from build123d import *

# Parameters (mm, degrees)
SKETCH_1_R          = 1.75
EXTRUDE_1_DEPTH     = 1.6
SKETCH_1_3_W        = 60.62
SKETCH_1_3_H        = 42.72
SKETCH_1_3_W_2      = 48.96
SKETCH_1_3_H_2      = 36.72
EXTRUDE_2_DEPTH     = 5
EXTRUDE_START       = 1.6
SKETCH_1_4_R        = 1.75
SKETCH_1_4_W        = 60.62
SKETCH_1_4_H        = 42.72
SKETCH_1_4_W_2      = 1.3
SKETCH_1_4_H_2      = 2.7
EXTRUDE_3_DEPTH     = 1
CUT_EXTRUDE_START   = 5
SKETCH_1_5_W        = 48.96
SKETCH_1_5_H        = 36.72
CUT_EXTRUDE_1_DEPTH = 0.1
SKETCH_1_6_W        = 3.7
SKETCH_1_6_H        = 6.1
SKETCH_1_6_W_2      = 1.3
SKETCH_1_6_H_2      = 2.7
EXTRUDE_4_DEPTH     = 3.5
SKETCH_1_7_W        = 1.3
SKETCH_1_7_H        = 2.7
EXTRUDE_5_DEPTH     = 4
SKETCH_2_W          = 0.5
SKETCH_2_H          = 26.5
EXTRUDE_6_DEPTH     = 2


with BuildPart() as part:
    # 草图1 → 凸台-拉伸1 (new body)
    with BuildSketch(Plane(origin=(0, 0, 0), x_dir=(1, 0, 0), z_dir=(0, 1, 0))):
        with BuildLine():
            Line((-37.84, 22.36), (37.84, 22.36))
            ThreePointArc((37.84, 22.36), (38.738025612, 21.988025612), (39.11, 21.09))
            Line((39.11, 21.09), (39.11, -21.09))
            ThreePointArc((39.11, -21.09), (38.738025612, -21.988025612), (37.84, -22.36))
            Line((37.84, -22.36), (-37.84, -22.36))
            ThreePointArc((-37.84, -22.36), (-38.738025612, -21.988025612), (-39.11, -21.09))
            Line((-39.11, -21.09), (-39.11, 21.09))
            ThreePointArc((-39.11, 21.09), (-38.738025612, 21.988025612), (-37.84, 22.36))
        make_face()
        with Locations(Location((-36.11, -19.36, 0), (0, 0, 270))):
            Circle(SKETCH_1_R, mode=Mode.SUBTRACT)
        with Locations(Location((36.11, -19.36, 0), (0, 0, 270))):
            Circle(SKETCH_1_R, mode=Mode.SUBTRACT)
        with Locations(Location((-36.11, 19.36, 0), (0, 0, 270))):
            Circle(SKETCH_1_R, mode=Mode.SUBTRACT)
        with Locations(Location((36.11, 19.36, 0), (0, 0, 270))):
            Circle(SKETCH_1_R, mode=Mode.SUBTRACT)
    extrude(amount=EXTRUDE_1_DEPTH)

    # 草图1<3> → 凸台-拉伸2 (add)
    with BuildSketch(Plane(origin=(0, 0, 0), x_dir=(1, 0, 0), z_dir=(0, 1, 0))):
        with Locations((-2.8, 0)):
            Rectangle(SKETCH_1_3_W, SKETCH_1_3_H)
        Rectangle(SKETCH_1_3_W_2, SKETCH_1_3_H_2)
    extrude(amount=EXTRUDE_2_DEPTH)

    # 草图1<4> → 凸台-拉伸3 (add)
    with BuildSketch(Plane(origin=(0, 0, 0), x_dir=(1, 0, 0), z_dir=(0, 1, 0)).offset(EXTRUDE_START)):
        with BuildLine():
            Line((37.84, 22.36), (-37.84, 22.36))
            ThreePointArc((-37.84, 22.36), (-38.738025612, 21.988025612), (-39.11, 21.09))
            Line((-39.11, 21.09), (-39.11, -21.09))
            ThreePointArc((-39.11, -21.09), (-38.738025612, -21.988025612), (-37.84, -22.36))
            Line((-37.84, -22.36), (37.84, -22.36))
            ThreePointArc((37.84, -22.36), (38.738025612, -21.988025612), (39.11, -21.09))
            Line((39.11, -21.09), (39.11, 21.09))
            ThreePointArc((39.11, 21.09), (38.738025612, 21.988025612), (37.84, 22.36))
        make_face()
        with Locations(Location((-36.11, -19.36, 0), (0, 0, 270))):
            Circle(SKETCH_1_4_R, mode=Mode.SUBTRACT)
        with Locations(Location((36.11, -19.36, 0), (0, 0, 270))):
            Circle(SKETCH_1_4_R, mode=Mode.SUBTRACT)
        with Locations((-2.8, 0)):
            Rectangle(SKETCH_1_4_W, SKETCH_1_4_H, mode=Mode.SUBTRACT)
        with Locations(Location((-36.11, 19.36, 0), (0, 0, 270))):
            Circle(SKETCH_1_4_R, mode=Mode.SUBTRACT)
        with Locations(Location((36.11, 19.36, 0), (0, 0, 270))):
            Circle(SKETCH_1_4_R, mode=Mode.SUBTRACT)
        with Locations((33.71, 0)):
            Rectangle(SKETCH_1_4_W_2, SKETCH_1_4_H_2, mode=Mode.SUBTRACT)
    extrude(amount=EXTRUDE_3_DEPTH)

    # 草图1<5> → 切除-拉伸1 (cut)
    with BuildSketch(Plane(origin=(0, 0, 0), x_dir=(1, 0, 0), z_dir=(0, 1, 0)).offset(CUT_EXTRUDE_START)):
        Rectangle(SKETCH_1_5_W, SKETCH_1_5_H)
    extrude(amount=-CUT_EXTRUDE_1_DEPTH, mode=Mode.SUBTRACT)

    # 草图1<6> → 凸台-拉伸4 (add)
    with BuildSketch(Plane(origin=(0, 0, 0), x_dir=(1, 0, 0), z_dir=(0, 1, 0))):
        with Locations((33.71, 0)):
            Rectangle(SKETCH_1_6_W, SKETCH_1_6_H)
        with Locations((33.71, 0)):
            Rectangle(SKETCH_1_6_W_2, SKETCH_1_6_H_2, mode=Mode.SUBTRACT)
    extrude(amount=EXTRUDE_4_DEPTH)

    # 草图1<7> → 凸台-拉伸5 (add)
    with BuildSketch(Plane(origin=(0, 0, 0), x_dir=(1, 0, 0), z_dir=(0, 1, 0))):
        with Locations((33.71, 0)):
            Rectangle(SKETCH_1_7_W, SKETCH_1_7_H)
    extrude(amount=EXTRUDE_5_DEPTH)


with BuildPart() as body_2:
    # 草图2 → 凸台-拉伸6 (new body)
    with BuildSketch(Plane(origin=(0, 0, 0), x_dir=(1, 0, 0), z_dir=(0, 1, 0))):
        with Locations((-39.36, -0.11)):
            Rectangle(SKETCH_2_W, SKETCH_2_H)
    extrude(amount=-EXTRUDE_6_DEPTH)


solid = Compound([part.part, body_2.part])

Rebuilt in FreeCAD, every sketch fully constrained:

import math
import FreeCAD as App
import Part
import Sketcher
Q = App.Units.Quantity


def add_polygon(sketch, points):
    """Adds a closed chain of lines whose ends are joined by coincident constraints."""
    first, n = sketch.GeometryCount, len(points)
    for a, b in zip(points, points[1:] + points[:1]):
        sketch.addGeometry(Part.LineSegment(App.Vector(*a, 0), App.Vector(*b, 0)), False)
    for i in range(n):
        sketch.addConstraint(Sketcher.Constraint("Coincident", first + i, 2, first + (i + 1) % n, 1))

doc = App.newDocument("Part")
body = doc.addObject("PartDesign::Body", "Body")

# Sketch on XZ plane
sketch1 = body.newObject("Sketcher::SketchObject", "Sketch")
sketch1.AttachmentSupport = (doc.getObject("XZ_Plane"), [""])
sketch1.MapMode = "FlatFace"
sketch1.addGeometry(Part.LineSegment(App.Vector(37.84, -22.36, 0), App.Vector(-37.84, -22.36, 0)), False)
sketch1.addGeometry(Part.ArcOfCircle(Part.Circle(App.Vector(-37.84, -21.09, 0), App.Vector(0, 0, 1), 1.27), math.radians(180), math.radians(270)), False)
sketch1.addGeometry(Part.LineSegment(App.Vector(-39.11, -21.09, 0), App.Vector(-39.11, 21.09, 0)), False)
sketch1.addGeometry(Part.ArcOfCircle(Part.Circle(App.Vector(-37.84, 21.09, 0), App.Vector(0, 0, 1), 1.27), math.radians(90), math.radians(180)), False)
sketch1.addGeometry(Part.LineSegment(App.Vector(-37.84, 22.36, 0), App.Vector(37.84, 22.36, 0)), False)
sketch1.addGeometry(Part.ArcOfCircle(Part.Circle(App.Vector(37.84, 21.09, 0), App.Vector(0, 0, 1), 1.27), math.radians(0), math.radians(90)), False)
sketch1.addGeometry(Part.LineSegment(App.Vector(39.11, 21.09, 0), App.Vector(39.11, -21.09, 0)), False)
sketch1.addGeometry(Part.ArcOfCircle(Part.Circle(App.Vector(37.84, -21.09, 0), App.Vector(0, 0, 1), 1.27), math.radians(-90), math.radians(0)), False)
sketch1.addGeometry(Part.Circle(App.Vector(36.11, 19.36, 0), App.Vector(0, 0, 1), 1.75), False)
sketch1.addGeometry(Part.Circle(App.Vector(-36.11, 19.36, 0), App.Vector(0, 0, 1), 1.75), False)
sketch1.addGeometry(Part.Circle(App.Vector(36.11, -19.36, 0), App.Vector(0, 0, 1), 1.75), False)
sketch1.addGeometry(Part.Circle(App.Vector(-36.11, -19.36, 0), App.Vector(0, 0, 1), 1.75), False)
sketch1.addConstraint(Sketcher.Constraint("Tangent", 0, 2, 1, 2))
sketch1.addConstraint(Sketcher.Constraint("Tangent", 1, 1, 2, 1))
sketch1.addConstraint(Sketcher.Constraint("Tangent", 2, 2, 3, 2))
sketch1.addConstraint(Sketcher.Constraint("Tangent", 3, 1, 4, 1))
sketch1.addConstraint(Sketcher.Constraint("Tangent", 4, 2, 5, 2))
sketch1.addConstraint(Sketcher.Constraint("Tangent", 5, 1, 6, 1))
sketch1.addConstraint(Sketcher.Constraint("Tangent", 6, 2, 7, 2))
sketch1.addConstraint(Sketcher.Constraint("Tangent", 7, 1, 0, 1))
sketch1.addConstraint(Sketcher.Constraint("Horizontal", 0))
sketch1.addConstraint(Sketcher.Constraint("Vertical", 2))
sketch1.addConstraint(Sketcher.Constraint("Horizontal", 4))
sketch1.addConstraint(Sketcher.Constraint("Vertical", 6))
sketch1.addConstraint(Sketcher.Constraint("Equal", 1, 3))
sketch1.addConstraint(Sketcher.Constraint("Equal", 3, 5))
sketch1.addConstraint(Sketcher.Constraint("Equal", 5, 7))
sketch1.addConstraint(Sketcher.Constraint("Equal", 8, 9))
sketch1.addConstraint(Sketcher.Constraint("Equal", 9, 10))
sketch1.addConstraint(Sketcher.Constraint("Equal", 10, 11))
sketch1.addConstraint(Sketcher.Constraint("Symmetric", 1, 3, 5, 3, -1, 1))
sketch1.addConstraint(Sketcher.Constraint("Symmetric", 9, 3, 10, 3, -1, 1))
sketch1.addConstraint(Sketcher.Constraint("Symmetric", 8, 3, 11, 3, -1, 1))
sketch1.addConstraint(Sketcher.Constraint("Symmetric", 8, 3, 9, 3, -2))
sketch1.addConstraint(Sketcher.Constraint("Diameter", 8, Q("3.5 mm")))
sketch1.addConstraint(Sketcher.Constraint("Radius", 1, Q("1.27 mm")))
sketch1.addConstraint(Sketcher.Constraint("DistanceY", 0, 2, 11, 3, Q("3 mm")))
sketch1.addConstraint(Sketcher.Constraint("DistanceX", 1, 1, 11, 3, Q("3 mm")))
sketch1.addConstraint(Sketcher.Constraint("DistanceX", 0, 2, 0, 1, Q("75.68 mm")))
sketch1.addConstraint(Sketcher.Constraint("DistanceY", 2, 1, 2, 2, Q("42.18 mm")))
pad1 = body.newObject("PartDesign::Pad", "Pad")
pad1.Profile = sketch1
pad1.Length = 1.6
pad1.Reversed = True

# Sketch on XZ plane
sketch2 = body.newObject("Sketcher::SketchObject", "Sketch001")
sketch2.AttachmentSupport = (doc.getObject("XZ_Plane"), [""])
sketch2.MapMode = "FlatFace"
add_polygon(sketch2, [(-33.11, -21.36), (-33.11, 21.36), (27.51, 21.36), (27.51, -21.36)])  # lines 0-3
sketch2.addConstraint(Sketcher.Constraint("Vertical", 0))
sketch2.addConstraint(Sketcher.Constraint("Horizontal", 1))
sketch2.addConstraint(Sketcher.Constraint("Vertical", 2))
sketch2.addConstraint(Sketcher.Constraint("Horizontal", 3))
sketch2.addConstraint(Sketcher.Constraint("DistanceX", 1, 1, 1, 2, Q("60.62 mm")))
sketch2.addConstraint(Sketcher.Constraint("DistanceY", 0, 1, 0, 2, Q("42.72 mm")))
sketch2.addConstraint(Sketcher.Constraint("DistanceX", 0, 2, -1, 1, Q("33.11 mm")))
sketch2.addConstraint(Sketcher.Constraint("DistanceY", -1, 1, 0, 2, Q("21.36 mm")))
pad2 = body.newObject("PartDesign::Pad", "Pad001")
pad2.Profile = sketch2
pad2.Length = 5
pad2.Reversed = True

# Sketch on XZ plane
sketch3 = body.newObject("Sketcher::SketchObject", "Sketch002")
sketch3.AttachmentSupport = (doc.getObject("XZ_Plane"), [""])
sketch3.MapMode = "FlatFace"
sketch3.AttachmentOffset = App.Placement(App.Vector(0, 0, -1.6), App.Rotation())
sketch3.addGeometry(Part.LineSegment(App.Vector(37.84, -22.36, 0), App.Vector(-37.84, -22.36, 0)), False)  # 0
sketch3.addGeometry(Part.ArcOfCircle(Part.Circle(App.Vector(-37.84, -21.09, 0), App.Vector(0, 0, 1), 1.27), math.radians(180), math.radians(270)), False)  # 1
sketch3.addGeometry(Part.LineSegment(App.Vector(-39.11, -21.09, 0), App.Vector(-39.11, 21.09, 0)), False)  # 2
sketch3.addGeometry(Part.ArcOfCircle(Part.Circle(App.Vector(-37.84, 21.09, 0), App.Vector(0, 0, 1), 1.27), math.radians(90), math.radians(180)), False)  # 3
sketch3.addGeometry(Part.LineSegment(App.Vector(-37.84, 22.36, 0), App.Vector(37.84, 22.36, 0)), False)  # 4
sketch3.addGeometry(Part.ArcOfCircle(Part.Circle(App.Vector(37.84, 21.09, 0), App.Vector(0, 0, 1), 1.27), math.radians(0), math.radians(90)), False)  # 5
sketch3.addGeometry(Part.LineSegment(App.Vector(39.11, 21.09, 0), App.Vector(39.11, -21.09, 0)), False)  # 6
sketch3.addGeometry(Part.ArcOfCircle(Part.Circle(App.Vector(37.84, -21.09, 0), App.Vector(0, 0, 1), 1.27), math.radians(-90), math.radians(0)), False)  # 7
sketch3.addGeometry(Part.Circle(App.Vector(-36.11, 19.36, 0), App.Vector(0, 0, 1), 1.75), False)  # 8
sketch3.addGeometry(Part.Circle(App.Vector(36.11, 19.36, 0), App.Vector(0, 0, 1), 1.75), False)  # 9
add_polygon(sketch3, [(27.51, 21.36), (-33.11, 21.36), (-33.11, -21.36), (27.51, -21.36)])  # lines 10-13
sketch3.addGeometry(Part.Circle(App.Vector(-36.11, -19.36, 0), App.Vector(0, 0, 1), 1.75), False)  # 14
add_polygon(sketch3, [(34.36, 1.35), (33.06, 1.35), (33.06, -1.35), (34.36, -1.35)])  # lines 15-18
sketch3.addGeometry(Part.Circle(App.Vector(36.11, -19.36, 0), App.Vector(0, 0, 1), 1.75), False)  # 19
sketch3.addConstraint(Sketcher.Constraint("Tangent", 0, 2, 1, 2))
sketch3.addConstraint(Sketcher.Constraint("Tangent", 1, 1, 2, 1))
sketch3.addConstraint(Sketcher.Constraint("Tangent", 2, 2, 3, 2))
sketch3.addConstraint(Sketcher.Constraint("Tangent", 3, 1, 4, 1))
sketch3.addConstraint(Sketcher.Constraint("Tangent", 4, 2, 5, 2))
sketch3.addConstraint(Sketcher.Constraint("Tangent", 5, 1, 6, 1))
sketch3.addConstraint(Sketcher.Constraint("Tangent", 6, 2, 7, 2))
sketch3.addConstraint(Sketcher.Constraint("Tangent", 7, 1, 0, 1))
sketch3.addConstraint(Sketcher.Constraint("Horizontal", 0))
sketch3.addConstraint(Sketcher.Constraint("Vertical", 2))
sketch3.addConstraint(Sketcher.Constraint("Horizontal", 4))
sketch3.addConstraint(Sketcher.Constraint("Vertical", 6))
sketch3.addConstraint(Sketcher.Constraint("Horizontal", 10))
sketch3.addConstraint(Sketcher.Constraint("Vertical", 11))
sketch3.addConstraint(Sketcher.Constraint("Horizontal", 12))
sketch3.addConstraint(Sketcher.Constraint("Vertical", 13))
sketch3.addConstraint(Sketcher.Constraint("Horizontal", 15))
sketch3.addConstraint(Sketcher.Constraint("Vertical", 16))
sketch3.addConstraint(Sketcher.Constraint("Horizontal", 17))
sketch3.addConstraint(Sketcher.Constraint("Vertical", 18))
sketch3.addConstraint(Sketcher.Constraint("Equal", 1, 3))
sketch3.addConstraint(Sketcher.Constraint("Equal", 3, 5))
sketch3.addConstraint(Sketcher.Constraint("Equal", 5, 7))
sketch3.addConstraint(Sketcher.Constraint("Equal", 8, 9))
sketch3.addConstraint(Sketcher.Constraint("Equal", 9, 14))
sketch3.addConstraint(Sketcher.Constraint("Equal", 14, 19))
sketch3.addConstraint(Sketcher.Constraint("Symmetric", 1, 3, 5, 3, -1, 1))
sketch3.addConstraint(Sketcher.Constraint("Symmetric", 9, 3, 14, 3, -1, 1))
sketch3.addConstraint(Sketcher.Constraint("Symmetric", 8, 3, 19, 3, -1, 1))
sketch3.addConstraint(Sketcher.Constraint("Symmetric", 8, 3, 9, 3, -2))
sketch3.addConstraint(Sketcher.Constraint("Diameter", 8, Q("3.5 mm")))
sketch3.addConstraint(Sketcher.Constraint("Radius", 1, Q("1.27 mm")))
sketch3.addConstraint(Sketcher.Constraint("DistanceX", 15, 2, 15, 1, Q("1.3 mm")))
sketch3.addConstraint(Sketcher.Constraint("DistanceY", 16, 2, 16, 1, Q("2.7 mm")))
sketch3.addConstraint(Sketcher.Constraint("DistanceY", 0, 2, 14, 3, Q("3 mm")))
sketch3.addConstraint(Sketcher.Constraint("DistanceX", 1, 1, 14, 3, Q("3 mm")))
sketch3.addConstraint(Sketcher.Constraint("DistanceX", 8, 3, 10, 2, Q("3 mm")))
sketch3.addConstraint(Sketcher.Constraint("DistanceY", 8, 3, 10, 2, Q("2 mm")))
sketch3.addConstraint(Sketcher.Constraint("DistanceY", 11, 2, 14, 3, Q("2 mm")))
sketch3.addConstraint(Sketcher.Constraint("DistanceX", 0, 2, 0, 1, Q("75.68 mm")))
sketch3.addConstraint(Sketcher.Constraint("DistanceX", 10, 2, 10, 1, Q("60.62 mm")))
sketch3.addConstraint(Sketcher.Constraint("DistanceY", 2, 1, 2, 2, Q("42.18 mm")))
sketch3.addConstraint(Sketcher.Constraint("DistanceX", -1, 1, 15, 2, Q("33.06 mm")))
sketch3.addConstraint(Sketcher.Constraint("DistanceY", -1, 1, 15, 2, Q("1.35 mm")))
pad3 = body.newObject("PartDesign::Pad", "Pad002")
pad3.Profile = sketch3
pad3.Length = 1
pad3.Reversed = True

# Sketch on XZ plane
sketch4 = body.newObject("Sketcher::SketchObject", "Sketch003")
sketch4.AttachmentSupport = (doc.getObject("XZ_Plane"), [""])
sketch4.MapMode = "FlatFace"
sketch4.AttachmentOffset = App.Placement(App.Vector(0, 0, -5), App.Rotation())
add_polygon(sketch4, [(-24.48, -18.36), (-24.48, 18.36), (24.48, 18.36), (24.48, -18.36)])  # lines 0-3
sketch4.addConstraint(Sketcher.Constraint("Vertical", 0))
sketch4.addConstraint(Sketcher.Constraint("Horizontal", 1))
sketch4.addConstraint(Sketcher.Constraint("Vertical", 2))
sketch4.addConstraint(Sketcher.Constraint("Horizontal", 3))
sketch4.addConstraint(Sketcher.Constraint("Symmetric", 0, 2, 2, 2, -1, 1))
sketch4.addConstraint(Sketcher.Constraint("DistanceX", 1, 1, 1, 2, Q("48.96 mm")))
sketch4.addConstraint(Sketcher.Constraint("DistanceY", 0, 1, 0, 2, Q("36.72 mm")))
pocket1 = body.newObject("PartDesign::Pocket", "Pocket")
pocket1.Profile = sketch4
pocket1.Length = 0.1
pocket1.Reversed = True

# Sketch on XZ plane
sketch5 = body.newObject("Sketcher::SketchObject", "Sketch004")
sketch5.AttachmentSupport = (doc.getObject("XZ_Plane"), [""])
sketch5.MapMode = "FlatFace"
add_polygon(sketch5, [(31.86, -3.05), (31.86, 3.05), (35.56, 3.05), (35.56, -3.05)])  # lines 0-3
add_polygon(sketch5, [(34.36, 1.35), (33.06, 1.35), (33.06, -1.35), (34.36, -1.35)])  # lines 4-7
sketch5.addConstraint(Sketcher.Constraint("Vertical", 0))
sketch5.addConstraint(Sketcher.Constraint("Horizontal", 1))
sketch5.addConstraint(Sketcher.Constraint("Vertical", 2))
sketch5.addConstraint(Sketcher.Constraint("Horizontal", 3))
sketch5.addConstraint(Sketcher.Constraint("Horizontal", 4))
sketch5.addConstraint(Sketcher.Constraint("Vertical", 5))
sketch5.addConstraint(Sketcher.Constraint("Horizontal", 6))
sketch5.addConstraint(Sketcher.Constraint("Vertical", 7))
sketch5.addConstraint(Sketcher.Constraint("DistanceX", 1, 1, 1, 2, Q("3.7 mm")))
sketch5.addConstraint(Sketcher.Constraint("DistanceX", 4, 2, 4, 1, Q("1.3 mm")))
sketch5.addConstraint(Sketcher.Constraint("DistanceY", 0, 1, 0, 2, Q("6.1 mm")))
sketch5.addConstraint(Sketcher.Constraint("DistanceY", 5, 2, 5, 1, Q("2.7 mm")))
sketch5.addConstraint(Sketcher.Constraint("DistanceX", 0, 2, 4, 2, Q("1.2 mm")))
sketch5.addConstraint(Sketcher.Constraint("DistanceY", 4, 2, 0, 2, Q("1.7 mm")))
sketch5.addConstraint(Sketcher.Constraint("DistanceX", -1, 1, 0, 2, Q("31.86 mm")))
sketch5.addConstraint(Sketcher.Constraint("DistanceY", -1, 1, 0, 2, Q("3.05 mm")))
pad4 = body.newObject("PartDesign::Pad", "Pad003")
pad4.Profile = sketch5
pad4.Length = 3.5
pad4.Reversed = True

# Sketch on XZ plane
sketch6 = body.newObject("Sketcher::SketchObject", "Sketch005")
sketch6.AttachmentSupport = (doc.getObject("XZ_Plane"), [""])
sketch6.MapMode = "FlatFace"
add_polygon(sketch6, [(33.06, -1.35), (33.06, 1.35), (34.36, 1.35), (34.36, -1.35)])  # lines 0-3
sketch6.addConstraint(Sketcher.Constraint("Vertical", 0))
sketch6.addConstraint(Sketcher.Constraint("Horizontal", 1))
sketch6.addConstraint(Sketcher.Constraint("Vertical", 2))
sketch6.addConstraint(Sketcher.Constraint("Horizontal", 3))
sketch6.addConstraint(Sketcher.Constraint("DistanceX", 1, 1, 1, 2, Q("1.3 mm")))
sketch6.addConstraint(Sketcher.Constraint("DistanceY", 0, 1, 0, 2, Q("2.7 mm")))
sketch6.addConstraint(Sketcher.Constraint("DistanceX", -1, 1, 0, 2, Q("33.06 mm")))
sketch6.addConstraint(Sketcher.Constraint("DistanceY", -1, 1, 0, 2, Q("1.35 mm")))
pad5 = body.newObject("PartDesign::Pad", "Pad004")
pad5.Profile = sketch6
pad5.Length = 4
pad5.Reversed = True
body2 = doc.addObject("PartDesign::Body", "Body001")

# Sketch on XZ plane
sketch7 = body2.newObject("Sketcher::SketchObject", "Sketch006")
sketch7.AttachmentSupport = (doc.getObject("XZ_Plane001"), [""])
sketch7.MapMode = "FlatFace"
add_polygon(sketch7, [(-39.61, -13.14), (-39.61, 13.36), (-39.11, 13.36), (-39.11, -13.14)])  # lines 0-3
sketch7.addConstraint(Sketcher.Constraint("Vertical", 0))
sketch7.addConstraint(Sketcher.Constraint("Horizontal", 1))
sketch7.addConstraint(Sketcher.Constraint("Vertical", 2))
sketch7.addConstraint(Sketcher.Constraint("Horizontal", 3))
sketch7.addConstraint(Sketcher.Constraint("DistanceX", 1, 1, 1, 2, Q("0.5 mm")))
sketch7.addConstraint(Sketcher.Constraint("DistanceY", 0, 1, 0, 2, Q("26.5 mm")))
sketch7.addConstraint(Sketcher.Constraint("DistanceX", 0, 2, -1, 1, Q("39.61 mm")))
sketch7.addConstraint(Sketcher.Constraint("DistanceY", -1, 1, 0, 2, Q("13.36 mm")))
pad6 = body2.newObject("PartDesign::Pad", "Pad005")
pad6.Profile = sketch7
pad6.Length = 2

doc.recompute()
